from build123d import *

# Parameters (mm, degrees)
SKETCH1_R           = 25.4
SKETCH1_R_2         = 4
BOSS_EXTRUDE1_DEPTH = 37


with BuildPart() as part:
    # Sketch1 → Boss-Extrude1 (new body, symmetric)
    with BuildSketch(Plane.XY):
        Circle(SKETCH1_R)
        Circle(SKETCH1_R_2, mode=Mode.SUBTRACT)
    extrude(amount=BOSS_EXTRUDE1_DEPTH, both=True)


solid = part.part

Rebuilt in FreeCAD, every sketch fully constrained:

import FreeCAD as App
import Part
import Sketcher

V = App.Vector

doc = App.newDocument("Part")
body = doc.addObject("PartDesign::Body", "Body")

sketch1 = doc.addObject("Sketcher::SketchObject", "Sketch")
body.addObject(sketch1)
sketch1.AttachmentSupport = (doc.XY_Plane, [""])
sketch1.MapMode = "FlatFace"
sketch1.addGeometry(Part.Circle(V(0, 0, 0), V(0, 0, 1), 25.4), False)
sketch1.addGeometry(Part.Circle(V(0, 0, 0), V(0, 0, 1), 4), False)
sketch1.addConstraint(Sketcher.Constraint("Coincident", 0, 3, -1, 1))
sketch1.addConstraint(Sketcher.Constraint("Coincident", 1, 3, -1, 1))
sketch1.addConstraint(Sketcher.Constraint("Diameter", 1, 8.0))
sketch1.addConstraint(Sketcher.Constraint("Diameter", 0, 50.8))
pad1 = doc.addObject("PartDesign::Pad", "Pad")
body.addObject(pad1)
pad1.Profile = sketch1
pad1.Length = 74
pad1.Midplane = True

doc.recompute()
